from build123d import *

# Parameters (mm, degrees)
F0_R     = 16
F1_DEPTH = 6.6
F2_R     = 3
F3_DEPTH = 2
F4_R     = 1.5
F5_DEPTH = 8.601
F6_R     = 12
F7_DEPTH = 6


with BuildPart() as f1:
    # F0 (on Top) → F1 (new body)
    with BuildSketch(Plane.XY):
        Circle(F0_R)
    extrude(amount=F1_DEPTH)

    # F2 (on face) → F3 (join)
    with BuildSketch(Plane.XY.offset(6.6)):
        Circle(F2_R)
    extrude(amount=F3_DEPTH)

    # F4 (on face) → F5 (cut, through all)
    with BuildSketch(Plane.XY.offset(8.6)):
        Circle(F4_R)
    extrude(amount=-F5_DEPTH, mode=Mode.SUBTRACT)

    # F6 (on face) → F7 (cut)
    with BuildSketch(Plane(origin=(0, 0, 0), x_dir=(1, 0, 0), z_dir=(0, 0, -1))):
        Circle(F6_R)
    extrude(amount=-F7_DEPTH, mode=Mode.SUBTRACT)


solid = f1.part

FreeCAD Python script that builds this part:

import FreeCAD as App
import Part
import Sketcher
Q = App.Units.Quantity

doc = App.newDocument("Part")
body = doc.addObject("PartDesign::Body", "Body")

# Sketch on XY plane
sketch1 = body.newObject("Sketcher::SketchObject", "Sketch")
sketch1.AttachmentSupport = (doc.getObject("XY_Plane"), [""])
sketch1.MapMode = "FlatFace"
sketch1.addGeometry(Part.Circle(App.Vector(0, 0, 0), App.Vector(0, 0, 1), 16), False)
sketch1.addConstraint(Sketcher.Constraint("Coincident", 0, 3, -1, 1))
sketch1.addConstraint(Sketcher.Constraint("Diameter", 0, Q("32 mm")))
pad1 = body.newObject("PartDesign::Pad", "Pad")
pad1.Profile = sketch1
pad1.Length = 6.6

# Sketch on XY plane
sketch2 = body.newObject("Sketcher::SketchObject", "Sketch001")
sketch2.AttachmentSupport = (doc.getObject("XY_Plane"), [""])
sketch2.MapMode = "FlatFace"
sketch2.AttachmentOffset = App.Placement(App.Vector(0, 0, 6.6), App.Rotation())
sketch2.addGeometry(Part.Circle(App.Vector(0, 0, 0), App.Vector(0, 0, 1), 3), False)
sketch2.addConstraint(Sketcher.Constraint("Coincident", 0, 3, -1, 1))
sketch2.addConstraint(Sketcher.Constraint("Diameter", 0, Q("6 mm")))
pad2 = body.newObject("PartDesign::Pad", "Pad001")
pad2.Profile = sketch2
pad2.Length = 2

# Sketch on XY plane
sketch3 = body.newObject("Sketcher::SketchObject", "Sketch002")
sketch3.AttachmentSupport = (doc.getObject("XY_Plane"), [""])
sketch3.MapMode = "FlatFace"
sketch3.AttachmentOffset = App.Placement(App.Vector(0, 0, 8.6), App.Rotation())
sketch3.addGeometry(Part.Circle(App.Vector(0, 0, 0), App.Vector(0, 0, 1), 1.5), False)
sketch3.addConstraint(Sketcher.Constraint("Coincident", 0, 3, -1, 1))
sketch3.addConstraint(Sketcher.Constraint("Diameter", 0, Q("3 mm")))
pocket1 = body.newObject("PartDesign::Pocket", "Pocket")
pocket1.Profile = sketch3
pocket1.Type = "ThroughAll"

# Sketch on XY plane
sketch4 = body.newObject("Sketcher::SketchObject", "Sketch003")
sketch4.AttachmentSupport = (doc.getObject("XY_Plane"), [""])
sketch4.MapMode = "FlatFace"
sketch4.addGeometry(Part.Circle(App.Vector(0, 0, 0), App.Vector(0, 0, 1), 12), False)
sketch4.addConstraint(Sketcher.Constraint("Coincident", 0, 3, -1, 1))
sketch4.addConstraint(Sketcher.Constraint("Diameter", 0, Q("24 mm")))
pocket2 = body.newObject("PartDesign::Pocket", "Pocket001")
pocket2.Profile = sketch4
pocket2.Length = 6
pocket2.Reversed = True

doc.recompute()
